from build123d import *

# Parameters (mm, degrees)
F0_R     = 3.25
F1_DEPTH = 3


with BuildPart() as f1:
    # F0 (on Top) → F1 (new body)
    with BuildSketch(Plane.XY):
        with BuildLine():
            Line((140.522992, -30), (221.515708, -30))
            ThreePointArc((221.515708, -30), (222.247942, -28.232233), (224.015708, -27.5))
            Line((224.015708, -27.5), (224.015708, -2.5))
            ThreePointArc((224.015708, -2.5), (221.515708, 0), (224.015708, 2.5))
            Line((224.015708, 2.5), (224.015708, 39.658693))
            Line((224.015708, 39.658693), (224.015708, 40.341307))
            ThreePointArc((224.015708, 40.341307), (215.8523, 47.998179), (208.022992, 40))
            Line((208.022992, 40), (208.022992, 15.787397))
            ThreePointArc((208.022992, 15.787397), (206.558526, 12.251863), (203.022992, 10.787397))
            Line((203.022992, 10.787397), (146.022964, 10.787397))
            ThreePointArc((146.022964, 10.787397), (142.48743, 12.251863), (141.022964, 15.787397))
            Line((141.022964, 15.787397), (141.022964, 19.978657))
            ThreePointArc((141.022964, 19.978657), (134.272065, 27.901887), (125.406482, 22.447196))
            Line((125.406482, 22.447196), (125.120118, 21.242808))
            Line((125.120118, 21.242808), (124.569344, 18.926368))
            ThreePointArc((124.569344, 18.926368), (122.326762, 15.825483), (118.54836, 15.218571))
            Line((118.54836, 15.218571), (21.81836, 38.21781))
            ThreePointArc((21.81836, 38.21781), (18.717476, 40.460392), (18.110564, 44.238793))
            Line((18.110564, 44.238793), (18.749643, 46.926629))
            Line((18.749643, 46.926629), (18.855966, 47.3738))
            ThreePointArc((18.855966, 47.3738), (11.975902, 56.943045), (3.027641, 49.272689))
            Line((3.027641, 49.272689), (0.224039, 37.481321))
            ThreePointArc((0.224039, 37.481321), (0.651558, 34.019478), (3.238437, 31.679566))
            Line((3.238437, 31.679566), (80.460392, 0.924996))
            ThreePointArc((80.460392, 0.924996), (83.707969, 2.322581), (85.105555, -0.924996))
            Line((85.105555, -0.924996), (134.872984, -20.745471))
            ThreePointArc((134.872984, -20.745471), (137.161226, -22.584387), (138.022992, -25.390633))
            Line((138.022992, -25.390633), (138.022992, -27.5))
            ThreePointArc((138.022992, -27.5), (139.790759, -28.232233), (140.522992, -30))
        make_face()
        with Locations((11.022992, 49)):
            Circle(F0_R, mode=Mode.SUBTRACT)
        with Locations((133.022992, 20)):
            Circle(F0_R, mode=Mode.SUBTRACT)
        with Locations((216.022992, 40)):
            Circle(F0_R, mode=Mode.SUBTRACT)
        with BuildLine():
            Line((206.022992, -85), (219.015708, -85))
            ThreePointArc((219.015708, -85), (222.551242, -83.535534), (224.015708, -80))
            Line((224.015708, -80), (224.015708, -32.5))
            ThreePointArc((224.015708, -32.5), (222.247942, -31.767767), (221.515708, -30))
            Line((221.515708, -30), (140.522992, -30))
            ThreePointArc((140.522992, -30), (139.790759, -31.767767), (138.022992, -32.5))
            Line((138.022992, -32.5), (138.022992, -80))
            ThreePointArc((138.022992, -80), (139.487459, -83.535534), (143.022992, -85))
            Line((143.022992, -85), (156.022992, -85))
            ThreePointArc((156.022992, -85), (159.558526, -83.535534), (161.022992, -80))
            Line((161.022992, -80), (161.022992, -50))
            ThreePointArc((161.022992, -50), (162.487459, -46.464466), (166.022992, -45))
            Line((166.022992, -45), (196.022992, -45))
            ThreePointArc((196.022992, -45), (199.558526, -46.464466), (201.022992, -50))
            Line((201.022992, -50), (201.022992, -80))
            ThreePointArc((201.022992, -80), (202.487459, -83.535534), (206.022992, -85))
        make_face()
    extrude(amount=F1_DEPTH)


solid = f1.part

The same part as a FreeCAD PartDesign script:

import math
import FreeCAD as App
import Part
import Sketcher
Q = App.Units.Quantity

doc = App.newDocument("Part")
body = doc.addObject("PartDesign::Body", "Body")

# Sketch on XY plane
sketch1 = body.newObject("Sketcher::SketchObject", "Sketch")
sketch1.AttachmentSupport = (doc.getObject("XY_Plane"), [""])
sketch1.MapMode = "FlatFace"
sketch1.addGeometry([
    Part.ArcOfCircle(Part.Circle(App.Vector(138.022992, -30, 0), App.Vector(0, 0, 1), 2.5), math.radians(-0.000004), math.radians(90.000004)),  # 0
    Part.ArcOfCircle(Part.Circle(App.Vector(138.022992, -30, 0), App.Vector(0, 0, 1), 2.5), math.radians(-90.000004), math.radians(0.000004)),  # 1
    Part.LineSegment(App.Vector(138.022992, -32.5, 0), App.Vector(138.022992, -80, 0)),  # 2
    Part.ArcOfCircle(Part.Circle(App.Vector(143.022993, -79.999999, 0), App.Vector(0, 0, 1), 5.000001), math.radians(-179.999984), math.radians(-90.000016)),  # 3
    Part.LineSegment(App.Vector(143.022992, -85, 0), App.Vector(156.022992, -85, 0)),  # 4
    Part.ArcOfCircle(Part.Circle(App.Vector(156.022992, -80, 0), App.Vector(0, 0, 1), 5), math.radians(-90.000004), math.radians(0.000004)),  # 5
    Part.LineSegment(App.Vector(161.022992, -80, 0), App.Vector(161.022992, -50, 0)),  # 6
    Part.ArcOfCircle(Part.Circle(App.Vector(166.022993, -50.000001, 0), App.Vector(0, 0, 1), 5.000001), math.radians(90.000016), math.radians(179.999984)),  # 7
    Part.LineSegment(App.Vector(166.022992, -45, 0), App.Vector(196.022992, -45, 0)),  # 8
    Part.ArcOfCircle(Part.Circle(App.Vector(196.022992, -50, 0), App.Vector(0, 0, 1), 5), math.radians(-0.000004), math.radians(90.000004)),  # 9
    Part.LineSegment(App.Vector(201.022992, -50, 0), App.Vector(201.022992, -80, 0)),  # 10
    Part.ArcOfCircle(Part.Circle(App.Vector(206.022993, -79.999999, 0), App.Vector(0, 0, 1), 5.000001), math.radians(-179.999984), math.radians(-90.000016)),  # 11
    Part.LineSegment(App.Vector(206.022992, -85, 0), App.Vector(219.015708, -85, 0)),  # 12
    Part.ArcOfCircle(Part.Circle(App.Vector(219.015708, -80, 0), App.Vector(0, 0, 1), 5), math.radians(-90.000004), math.radians(0.000004)),  # 13
    Part.LineSegment(App.Vector(224.015708, -80, 0), App.Vector(224.015708, -32.5, 0)),  # 14
    Part.ArcOfCircle(Part.Circle(App.Vector(224.01571, -29.999998, 0), App.Vector(0, 0, 1), 2.500002), math.radians(-179.999965), math.radians(-90.000035)),  # 15
    Part.ArcOfCircle(Part.Circle(App.Vector(224.01571, -30.000002, 0), App.Vector(0, 0, 1), 2.500002), math.radians(90.000035), math.radians(179.999965)),  # 16
    Part.LineSegment(App.Vector(224.015708, -27.5, 0), App.Vector(224.015708, -2.5, 0)),  # 17
    Part.ArcOfCircle(Part.Circle(App.Vector(224.015708, 0, 0), App.Vector(0, 0, 1), 2.5), math.radians(90), math.radians(270)),  # 18
    Part.LineSegment(App.Vector(224.015708, 2.5, 0), App.Vector(224.015708, 40.341307, 0)),  # 19
    Part.ArcOfCircle(Part.Circle(App.Vector(216.022992, 40, 0), App.Vector(0, 0, 1), 8), math.radians(2.445172), math.radians(180.000002)),  # 20
    Part.LineSegment(App.Vector(208.022992, 40, 0), App.Vector(208.022992, 15.787397, 0)),  # 21
    Part.ArcOfCircle(Part.Circle(App.Vector(203.022992, 15.787397, 0), App.Vector(0, 0, 1), 5), math.radians(-90.000004), math.radians(0.000004)),  # 22
    Part.LineSegment(App.Vector(203.022992, 10.787397, 0), App.Vector(146.022964, 10.787397, 0)),  # 23
    Part.ArcOfCircle(Part.Circle(App.Vector(146.022964, 15.787397, 0), App.Vector(0, 0, 1), 5), math.radians(179.999996), math.radians(270.000004)),  # 24
    Part.LineSegment(App.Vector(141.022964, 15.787397, 0), App.Vector(141.022964, 19.978657, 0)),  # 25
    Part.ArcOfCircle(Part.Circle(App.Vector(133.022992, 20, 0), App.Vector(0, 0, 1), 8), math.radians(-0.152858), math.radians(162.187712)),  # 26
    Part.LineSegment(App.Vector(125.406482, 22.447196, 0), App.Vector(125.120118, 21.242808, 0)),  # 27
    Part.LineSegment(App.Vector(125.120118, 21.242808, 0), App.Vector(124.569344, 18.926368, 0)),  # 28
    Part.ArcOfCircle(Part.Circle(App.Vector(119.704953, 20.082962, 0), App.Vector(0, 0, 1), 5), math.radians(-103.374719), math.radians(-13.374722)),  # 29
    Part.LineSegment(App.Vector(118.54836, 15.218571, 0), App.Vector(21.81836, 38.21781, 0)),  # 30
    Part.ArcOfCircle(Part.Circle(App.Vector(22.974955, 43.0822, 0), App.Vector(0, 0, 1), 5), math.radians(166.625289), math.radians(256.625264)),  # 31
    Part.LineSegment(App.Vector(18.110564, 44.238793, 0), App.Vector(18.749643, 46.926629, 0)),  # 32
    Part.LineSegment(App.Vector(18.749643, 46.926629, 0), App.Vector(18.855966, 47.3738, 0)),  # 33
    Part.ArcOfCircle(Part.Circle(App.Vector(11.022992, 49, 0), App.Vector(0, 0, 1), 8), math.radians(-11.728537), math.radians(178.04663)),  # 34
    Part.LineSegment(App.Vector(3.027641, 49.272689, 0), App.Vector(0.224039, 37.481321, 0)),  # 35
    Part.ArcOfCircle(Part.Circle(App.Vector(5.088428, 36.324727, 0), App.Vector(0, 0, 1), 4.999999), math.radians(166.625273), math.radians(248.284489)),  # 36
    Part.LineSegment(App.Vector(3.238437, 31.679566, 0), App.Vector(80.460392, 0.924996, 0)),  # 37
    Part.ArcOfCircle(Part.Circle(App.Vector(82.782973, -0.000001, 0), App.Vector(0, 0, 1), 2.5), math.radians(-21.715499), math.radians(158.284471)),  # 38
    Part.LineSegment(App.Vector(85.105555, -0.924996, 0), App.Vector(134.872984, -20.745471, 0)),  # 39
    Part.ArcOfCircle(Part.Circle(App.Vector(133.022991, -25.390634, 0), App.Vector(0, 0, 1), 5.000001), math.radians(0.000011), math.radians(68.28447)),  # 40
    Part.LineSegment(App.Vector(138.022992, -25.390633, 0), App.Vector(138.022992, -27.5, 0)),  # 41
    Part.Circle(App.Vector(133.022992, 20, 0), App.Vector(0, 0, 1), 3.25),  # 42
    Part.Circle(App.Vector(11.022992, 49, 0), App.Vector(0, 0, 1), 3.25),  # 43
    Part.Circle(App.Vector(216.022992, 40, 0), App.Vector(0, 0, 1), 3.25),  # 44
], False)
sketch1.addConstraint([
    Sketcher.Constraint("Coincident", 0, 1, 1, 2),
    Sketcher.Constraint("Coincident", 1, 1, 2, 1),
    Sketcher.Constraint("Coincident", 2, 2, 3, 1),
    Sketcher.Constraint("Coincident", 3, 2, 4, 1),
    Sketcher.Constraint("Coincident", 4, 2, 5, 1),
    Sketcher.Constraint("Coincident", 5, 2, 6, 1),
    Sketcher.Constraint("Coincident", 6, 2, 7, 2),
    Sketcher.Constraint("Coincident", 7, 1, 8, 1),
    Sketcher.Constraint("Coincident", 8, 2, 9, 2),
    Sketcher.Constraint("Coincident", 9, 1, 10, 1),
    Sketcher.Constraint("Coincident", 10, 2, 11, 1),
    Sketcher.Constraint("Coincident", 11, 2, 12, 1),
    Sketcher.Constraint("Coincident", 12, 2, 13, 1),
    Sketcher.Constraint("Coincident", 13, 2, 14, 1),
    Sketcher.Constraint("Coincident", 14, 2, 15, 2),
    Sketcher.Constraint("Coincident", 15, 1, 16, 2),
    Sketcher.Constraint("Coincident", 16, 1, 17, 1),
    Sketcher.Constraint("Coincident", 17, 2, 18, 2),
    Sketcher.Constraint("Coincident", 18, 1, 19, 1),
    Sketcher.Constraint("Coincident", 19, 2, 20, 1),
    Sketcher.Constraint("Coincident", 20, 2, 21, 1),
    Sketcher.Constraint("Coincident", 21, 2, 22, 2),
    Sketcher.Constraint("Coincident", 22, 1, 23, 1),
    Sketcher.Constraint("Coincident", 23, 2, 24, 2),
    Sketcher.Constraint("Coincident", 24, 1, 25, 1),
    Sketcher.Constraint("Coincident", 25, 2, 26, 1),
    Sketcher.Constraint("Coincident", 26, 2, 27, 1),
    Sketcher.Constraint("Coincident", 27, 2, 28, 1),
    Sketcher.Constraint("Coincident", 28, 2, 29, 2),
    Sketcher.Constraint("Coincident", 29, 1, 30, 1),
    Sketcher.Constraint("Coincident", 30, 2, 31, 2),
    Sketcher.Constraint("Coincident", 31, 1, 32, 1),
    Sketcher.Constraint("Coincident", 32, 2, 33, 1),
    Sketcher.Constraint("Coincident", 33, 2, 34, 1),
    Sketcher.Constraint("Coincident", 34, 2, 35, 1),
    Sketcher.Constraint("Coincident", 35, 2, 36, 1),
    Sketcher.Constraint("Coincident", 36, 2, 37, 1),
    Sketcher.Constraint("Coincident", 37, 2, 38, 2),
    Sketcher.Constraint("Coincident", 38, 1, 39, 1),
    Sketcher.Constraint("Coincident", 39, 2, 40, 2),
    Sketcher.Constraint("Coincident", 40, 1, 41, 1),
    Sketcher.Constraint("Coincident", 41, 2, 0, 2),
    Sketcher.Constraint("Vertical", 2),
    Sketcher.Constraint("Horizontal", 4),
    Sketcher.Constraint("Vertical", 6),
    Sketcher.Constraint("Horizontal", 8),
    Sketcher.Constraint("Vertical", 10),
    Sketcher.Constraint("Horizontal", 12),
    Sketcher.Constraint("Vertical", 14),
    Sketcher.Constraint("Vertical", 17),
    Sketcher.Constraint("Vertical", 19),
    Sketcher.Constraint("Vertical", 21),
    Sketcher.Constraint("Horizontal", 23),
    Sketcher.Constraint("Vertical", 25),
    Sketcher.Constraint("Vertical", 41),
    Sketcher.Constraint("Coincident", 1, 3, 0, 3),
    Sketcher.Constraint("Coincident", 16, 3, 15, 3),
    Sketcher.Constraint("Coincident", 42, 3, 26, 3),
    Sketcher.Constraint("Coincident", 43, 3, 34, 3),
    Sketcher.Constraint("Coincident", 44, 3, 20, 3),
    Sketcher.Constraint("PointOnObject", 18, 3, -1),
    Sketcher.Constraint("PointOnObject", 38, 3, -1),
    Sketcher.Constraint("Radius", 3, Q("5.000001 mm")),
    Sketcher.Constraint("Radius", 5, Q("5 mm")),
    Sketcher.Constraint("Radius", 7, Q("5.000001 mm")),
    Sketcher.Constraint("Radius", 9, Q("5 mm")),
    Sketcher.Constraint("Radius", 11, Q("5.000001 mm")),
    Sketcher.Constraint("Radius", 13, Q("5 mm")),
    Sketcher.Constraint("Radius", 20, Q("8 mm")),
    Sketcher.Constraint("Radius", 22, Q("5 mm")),
    Sketcher.Constraint("Radius", 24, Q("5 mm")),
    Sketcher.Constraint("Radius", 26, Q("8 mm")),
    Sketcher.Constraint("Radius", 29, Q("5 mm")),
    Sketcher.Constraint("Radius", 31, Q("5 mm")),
    Sketcher.Constraint("Radius", 34, Q("8 mm")),
    Sketcher.Constraint("Radius", 36, Q("4.999999 mm")),
    Sketcher.Constraint("Radius", 40, Q("5.000001 mm")),
    Sketcher.Constraint("Diameter", 42, Q("6.5 mm")),
    Sketcher.Constraint("Diameter", 43, Q("6.5 mm")),
    Sketcher.Constraint("Diameter", 44, Q("6.5 mm")),
    Sketcher.Constraint("Radius", 0, Q("2.5 mm")),
    Sketcher.Constraint("Radius", 15, Q("2.500002 mm")),
    Sketcher.Constraint("Radius", 18, Q("2.5 mm")),
    Sketcher.Constraint("Radius", 38, Q("2.5 mm")),
    Sketcher.Constraint("DistanceX", 4, 1, 4, 2, Q("13 mm")),
    Sketcher.Constraint("DistanceX", 8, 1, 8, 2, Q("30 mm")),
    Sketcher.Constraint("DistanceY", 6, 1, 6, 2, Q("30 mm")),
    Sketcher.Constraint("DistanceY", 10, 2, 10, 1, Q("30 mm")),
    Sketcher.Constraint("DistanceY", 17, 1, 17, 2, Q("25 mm")),
    Sketcher.Constraint("DistanceY", 2, 2, 2, 1, Q("47.5 mm")),
    Sketcher.Constraint("DistanceY", 14, 1, 14, 2, Q("47.5 mm")),
    Sketcher.Constraint("DistanceY", 0, 3, -1, 1, Q("30 mm")),
    Sketcher.Constraint("DistanceY", 3, 3, -1, 1, Q("79.999999 mm")),
    Sketcher.Constraint("DistanceY", 7, 3, -1, 1, Q("50.000001 mm")),
    Sketcher.Constraint("DistanceY", 11, 3, -1, 1, Q("79.999999 mm")),
    Sketcher.Constraint("DistanceY", -1, 1, 20, 3, Q("40 mm")),
    Sketcher.Constraint("DistanceY", -1, 1, 26, 3, Q("20 mm")),
    Sketcher.Constraint("DistanceY", -1, 1, 34, 3, Q("49 mm")),
    Sketcher.Constraint("DistanceY", 0, 1, -1, 1, Q("30 mm")),
    Sketcher.Constraint("DistanceY", 5, 2, -1, 1, Q("80 mm")),
    Sketcher.Constraint("DistanceY", 9, 1, -1, 1, Q("50 mm")),
    Sketcher.Constraint("DistanceY", 15, 1, -1, 1, Q("30 mm")),
    Sketcher.Constraint("DistanceY", -1, 1, 20, 2, Q("40 mm")),
    Sketcher.Constraint("DistanceY", 25, 1, 25, 2, Q("4.19126 mm")),
    Sketcher.Constraint("DistanceY", -1, 1, 31, 3, Q("43.0822 mm")),
    Sketcher.Constraint("DistanceY", -1, 1, 33, 2, Q("47.3738 mm")),
    Sketcher.Constraint("Distance", 35, Q("12.120088 mm")),
    Sketcher.Constraint("Distance", 37, Q("83.120839 mm")),
    Sketcher.Constraint("DistanceX", 12, 1, 12, 2, Q("12.992716 mm")),
    Sketcher.Constraint("DistanceX", 23, 2, 23, 1, Q("57.000028 mm")),
    Sketcher.Constraint("DistanceY", 19, 1, 19, 2, Q("37.841307 mm")),
    Sketcher.Constraint("DistanceY", 21, 2, 21, 1, Q("24.212603 mm")),
    Sketcher.Constraint("DistanceY", 41, 2, 41, 1, Q("2.109367 mm")),
    Sketcher.Constraint("DistanceX", -1, 1, 13, 3, Q("219.015708 mm")),
    Sketcher.Constraint("DistanceX", -1, 1, 15, 3, Q("224.01571 mm")),
    Sketcher.Constraint("DistanceX", -1, 1, 20, 3, Q("216.022992 mm")),
    Sketcher.Constraint("DistanceY", -1, 1, 29, 3, Q("20.082962 mm")),
    Sketcher.Constraint("DistanceX", -1, 1, 36, 3, Q("5.088428 mm")),
    Sketcher.Constraint("DistanceX", -1, 1, 40, 3, Q("133.022991 mm")),
    Sketcher.Constraint("DistanceX", -1, 1, 42, 3, Q("133.022992 mm")),
    Sketcher.Constraint("DistanceX", -1, 1, 0, 1, Q("140.522992 mm")),
    Sketcher.Constraint("DistanceX", -1, 1, 1, 1, Q("138.022992 mm")),
    Sketcher.Constraint("DistanceX", -1, 1, 3, 2, Q("143.022992 mm")),
    Sketcher.Constraint("DistanceX", -1, 1, 5, 2, Q("161.022992 mm")),
    Sketcher.Constraint("DistanceX", -1, 1, 7, 1, Q("166.022992 mm")),
    Sketcher.Constraint("DistanceX", -1, 1, 9, 1, Q("201.022992 mm")),
    Sketcher.Constraint("DistanceX", -1, 1, 11, 2, Q("206.022992 mm")),
    Sketcher.Constraint("DistanceX", -1, 1, 22, 1, Q("203.022992 mm")),
    Sketcher.Constraint("DistanceX", -1, 1, 27, 2, Q("125.120118 mm")),
    Sketcher.Constraint("DistanceY", -1, 1, 27, 2, Q("21.242808 mm")),
    Sketcher.Constraint("DistanceY", -1, 1, 28, 2, Q("18.926368 mm")),
    Sketcher.Constraint("DistanceX", -1, 1, 29, 1, Q("118.54836 mm")),
    Sketcher.Constraint("DistanceY", -1, 1, 29, 1, Q("15.218571 mm")),
    Sketcher.Constraint("DistanceX", -1, 1, 30, 2, Q("21.81836 mm")),
    Sketcher.Constraint("DistanceY", -1, 1, 30, 2, Q("38.21781 mm")),
    Sketcher.Constraint("DistanceY", -1, 1, 32, 2, Q("46.926629 mm")),
    Sketcher.Constraint("DistanceX", -1, 1, 34, 2, Q("3.027641 mm")),
    Sketcher.Constraint("DistanceY", -1, 1, 34, 2, Q("49.272689 mm")),
    Sketcher.Constraint("DistanceX", -1, 1, 35, 2, Q("0.224039 mm")),
    Sketcher.Constraint("DistanceX", -1, 1, 37, 2, Q("80.460392 mm")),
    Sketcher.Constraint("DistanceY", 39, 2, -1, 1, Q("20.745471 mm")),
    Sketcher.Constraint("Distance", 27, Q("1.237964 mm")),
    Sketcher.Constraint("Distance", 32, Q("2.762768 mm")),
    Sketcher.Constraint("Distance", 33, Q("0.459637 mm")),
    Sketcher.Constraint("Distance", 39, Q("53.569098 mm")),
    Sketcher.Constraint("DistanceX", -1, 1, 18, 3, Q("224.015708 mm")),
    Sketcher.Constraint("DistanceY", -1, 1, 22, 3, Q("15.787397 mm")),
    Sketcher.Constraint("DistanceX", -1, 1, 38, 3, Q("82.782973 mm")),
    Sketcher.Constraint("DistanceX", -1, 1, 16, 1, Q("224.015708 mm")),
    Sketcher.Constraint("DistanceY", -1, 1, 24, 1, Q("15.787397 mm")),
    Sketcher.Constraint("DistanceX", -1, 1, 38, 1, Q("85.105555 mm")),
])
pad1 = body.newObject("PartDesign::Pad", "Pad")
pad1.Profile = sketch1
pad1.Length = 3

doc.recompute()
